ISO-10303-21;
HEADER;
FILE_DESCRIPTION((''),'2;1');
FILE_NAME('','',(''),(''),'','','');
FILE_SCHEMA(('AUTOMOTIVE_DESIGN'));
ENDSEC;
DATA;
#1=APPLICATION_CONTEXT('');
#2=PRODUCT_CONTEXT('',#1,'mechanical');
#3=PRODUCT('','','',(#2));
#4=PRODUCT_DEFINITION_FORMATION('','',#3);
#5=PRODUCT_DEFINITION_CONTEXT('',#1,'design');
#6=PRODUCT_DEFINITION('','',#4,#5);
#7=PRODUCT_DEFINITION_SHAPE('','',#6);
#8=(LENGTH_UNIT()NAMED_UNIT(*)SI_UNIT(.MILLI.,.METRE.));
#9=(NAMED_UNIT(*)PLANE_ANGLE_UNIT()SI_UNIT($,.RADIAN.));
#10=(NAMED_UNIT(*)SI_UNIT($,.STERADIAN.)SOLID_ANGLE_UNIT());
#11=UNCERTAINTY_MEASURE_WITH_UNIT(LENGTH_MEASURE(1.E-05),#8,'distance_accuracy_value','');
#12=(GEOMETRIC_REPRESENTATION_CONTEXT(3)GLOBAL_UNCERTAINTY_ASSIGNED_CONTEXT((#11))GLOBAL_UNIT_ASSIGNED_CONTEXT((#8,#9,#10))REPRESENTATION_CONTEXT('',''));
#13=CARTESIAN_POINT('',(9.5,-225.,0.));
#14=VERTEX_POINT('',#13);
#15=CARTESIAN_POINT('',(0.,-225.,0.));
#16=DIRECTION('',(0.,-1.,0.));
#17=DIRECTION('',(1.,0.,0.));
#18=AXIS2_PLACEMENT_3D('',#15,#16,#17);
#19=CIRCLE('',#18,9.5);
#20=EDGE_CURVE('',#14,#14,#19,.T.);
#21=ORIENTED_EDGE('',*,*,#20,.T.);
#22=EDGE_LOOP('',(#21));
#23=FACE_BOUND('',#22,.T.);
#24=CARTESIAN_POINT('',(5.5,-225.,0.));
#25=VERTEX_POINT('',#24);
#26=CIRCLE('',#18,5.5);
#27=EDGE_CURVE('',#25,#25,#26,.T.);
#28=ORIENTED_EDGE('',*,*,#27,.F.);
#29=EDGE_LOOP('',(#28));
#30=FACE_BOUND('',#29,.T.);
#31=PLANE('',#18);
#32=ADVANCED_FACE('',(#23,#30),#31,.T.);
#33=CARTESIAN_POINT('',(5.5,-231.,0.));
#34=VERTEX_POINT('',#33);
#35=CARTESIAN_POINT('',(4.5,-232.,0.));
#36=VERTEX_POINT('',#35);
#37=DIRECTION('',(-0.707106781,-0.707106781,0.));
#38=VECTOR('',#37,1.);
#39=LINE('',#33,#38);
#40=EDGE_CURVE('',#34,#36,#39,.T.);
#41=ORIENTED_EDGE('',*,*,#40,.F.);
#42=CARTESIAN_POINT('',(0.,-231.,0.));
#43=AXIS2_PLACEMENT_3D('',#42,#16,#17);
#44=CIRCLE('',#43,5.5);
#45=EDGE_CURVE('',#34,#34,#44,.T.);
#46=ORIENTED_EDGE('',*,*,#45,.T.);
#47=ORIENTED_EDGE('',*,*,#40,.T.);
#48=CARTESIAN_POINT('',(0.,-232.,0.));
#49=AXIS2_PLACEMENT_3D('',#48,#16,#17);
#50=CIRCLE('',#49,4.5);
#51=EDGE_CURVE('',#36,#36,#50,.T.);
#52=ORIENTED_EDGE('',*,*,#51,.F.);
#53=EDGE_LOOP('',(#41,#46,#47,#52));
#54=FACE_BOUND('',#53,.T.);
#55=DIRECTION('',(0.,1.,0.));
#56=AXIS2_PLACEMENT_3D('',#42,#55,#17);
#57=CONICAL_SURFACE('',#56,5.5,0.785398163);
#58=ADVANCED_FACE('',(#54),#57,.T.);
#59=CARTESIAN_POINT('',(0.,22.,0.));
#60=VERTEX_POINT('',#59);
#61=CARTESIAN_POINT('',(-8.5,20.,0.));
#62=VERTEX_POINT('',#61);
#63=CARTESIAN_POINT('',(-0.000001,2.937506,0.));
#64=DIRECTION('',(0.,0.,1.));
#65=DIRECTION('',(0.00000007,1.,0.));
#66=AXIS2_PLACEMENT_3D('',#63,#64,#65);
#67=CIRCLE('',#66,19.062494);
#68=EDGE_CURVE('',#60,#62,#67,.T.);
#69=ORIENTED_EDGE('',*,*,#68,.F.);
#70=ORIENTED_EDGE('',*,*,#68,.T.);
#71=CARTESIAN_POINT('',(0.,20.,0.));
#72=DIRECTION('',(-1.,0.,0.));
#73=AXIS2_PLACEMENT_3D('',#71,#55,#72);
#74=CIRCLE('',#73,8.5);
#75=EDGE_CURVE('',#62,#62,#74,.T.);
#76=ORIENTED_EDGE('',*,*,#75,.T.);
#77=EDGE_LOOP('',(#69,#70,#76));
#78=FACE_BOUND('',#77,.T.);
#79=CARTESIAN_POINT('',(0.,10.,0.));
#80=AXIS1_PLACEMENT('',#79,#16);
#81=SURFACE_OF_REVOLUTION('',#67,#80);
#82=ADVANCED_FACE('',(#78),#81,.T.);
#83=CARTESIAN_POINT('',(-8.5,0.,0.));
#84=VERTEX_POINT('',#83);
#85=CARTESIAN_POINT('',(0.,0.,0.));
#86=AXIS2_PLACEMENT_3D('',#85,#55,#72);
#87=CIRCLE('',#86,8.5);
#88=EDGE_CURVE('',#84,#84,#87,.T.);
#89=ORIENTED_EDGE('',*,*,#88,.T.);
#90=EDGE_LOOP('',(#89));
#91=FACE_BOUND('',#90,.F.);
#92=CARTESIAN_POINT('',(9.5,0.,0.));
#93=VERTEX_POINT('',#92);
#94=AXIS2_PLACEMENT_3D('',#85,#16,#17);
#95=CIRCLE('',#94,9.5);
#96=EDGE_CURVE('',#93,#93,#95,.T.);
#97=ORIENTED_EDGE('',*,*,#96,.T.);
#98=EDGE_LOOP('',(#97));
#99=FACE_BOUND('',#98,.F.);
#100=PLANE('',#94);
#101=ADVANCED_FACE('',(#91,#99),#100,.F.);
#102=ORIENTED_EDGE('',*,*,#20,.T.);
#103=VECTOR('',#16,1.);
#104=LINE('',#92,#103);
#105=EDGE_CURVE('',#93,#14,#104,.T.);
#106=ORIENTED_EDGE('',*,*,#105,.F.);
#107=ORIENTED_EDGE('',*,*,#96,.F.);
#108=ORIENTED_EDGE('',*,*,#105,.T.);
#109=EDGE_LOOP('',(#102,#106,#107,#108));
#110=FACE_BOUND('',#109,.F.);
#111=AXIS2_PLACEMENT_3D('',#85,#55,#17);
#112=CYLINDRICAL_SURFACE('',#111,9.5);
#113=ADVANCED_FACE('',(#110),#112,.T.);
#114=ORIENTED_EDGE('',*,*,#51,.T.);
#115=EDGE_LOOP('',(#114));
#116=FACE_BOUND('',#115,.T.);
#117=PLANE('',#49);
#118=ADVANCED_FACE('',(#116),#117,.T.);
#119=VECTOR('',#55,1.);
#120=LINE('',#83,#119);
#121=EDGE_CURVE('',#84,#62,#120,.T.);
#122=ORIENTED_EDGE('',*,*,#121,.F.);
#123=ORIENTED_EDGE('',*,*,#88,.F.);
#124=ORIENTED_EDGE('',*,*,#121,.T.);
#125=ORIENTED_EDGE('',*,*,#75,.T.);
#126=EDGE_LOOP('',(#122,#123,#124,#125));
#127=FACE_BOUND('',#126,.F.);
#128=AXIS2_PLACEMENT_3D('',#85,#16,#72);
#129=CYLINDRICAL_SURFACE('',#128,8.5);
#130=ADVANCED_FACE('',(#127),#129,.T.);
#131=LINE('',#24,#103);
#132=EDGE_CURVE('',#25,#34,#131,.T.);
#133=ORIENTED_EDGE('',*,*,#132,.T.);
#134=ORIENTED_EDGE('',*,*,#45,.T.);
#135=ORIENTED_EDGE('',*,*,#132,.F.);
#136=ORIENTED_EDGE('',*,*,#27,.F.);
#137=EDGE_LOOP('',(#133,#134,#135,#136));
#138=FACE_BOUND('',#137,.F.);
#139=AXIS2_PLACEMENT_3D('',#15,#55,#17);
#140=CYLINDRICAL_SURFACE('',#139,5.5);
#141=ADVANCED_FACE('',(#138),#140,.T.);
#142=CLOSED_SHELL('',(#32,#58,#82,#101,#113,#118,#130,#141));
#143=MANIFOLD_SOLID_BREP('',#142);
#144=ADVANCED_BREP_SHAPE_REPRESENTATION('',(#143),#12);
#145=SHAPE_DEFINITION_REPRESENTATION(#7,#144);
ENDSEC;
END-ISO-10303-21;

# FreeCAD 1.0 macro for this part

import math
import FreeCAD as App
import Part
import Sketcher
from FreeCAD import Vector
Q = App.Units.Quantity


def edges_at(feature, points):
    """Names of the edges that pass closest to the given points."""
    edges = feature.Shape.Edges
    near = lambda p: min(range(len(edges)), key=lambda i: edges[i].distToShape(Part.Vertex(*p))[0])
    return sorted({f"Edge{near(p) + 1}" for p in points})

doc = App.newDocument("Part")
body = doc.addObject("PartDesign::Body", "Body")

# Sketch on XZ plane
sketch1 = body.newObject("Sketcher::SketchObject", "Sketch")
sketch1.AttachmentSupport = (doc.getObject("XZ_Plane"), [""])
sketch1.MapMode = "FlatFace"
sketch1.addGeometry(Part.Circle(Vector(0, 0, 0), Vector(0, 0, 1), 10), False)
sketch1.addConstraint([
    Sketcher.Constraint("Coincident", 0, 3, -1, 1),
    Sketcher.Constraint("Diameter", 0, Q("19 mm")),
])
pad1 = body.newObject("PartDesign::Pad", "Pad")
pad1.Profile = sketch1
pad1.Length = 225

# Sketch on XZ plane
sketch2 = body.newObject("Sketcher::SketchObject", "Sketch001")
sketch2.AttachmentSupport = (doc.getObject("XZ_Plane"), [""])
sketch2.MapMode = "FlatFace"
sketch2.AttachmentOffset = App.Placement(Vector(0, 0, 225), App.Rotation())
sketch2.addGeometry(Part.Circle(Vector(0, 0, 0), Vector(0, 0, 1), 6), False)
sketch2.addConstraint([
    Sketcher.Constraint("Coincident", 0, 3, -1, 1),
    Sketcher.Constraint("Diameter", 0, Q("11 mm")),
])
pad2 = body.newObject("PartDesign::Pad", "Pad001")
pad2.Profile = sketch2
pad2.Length = 7
doc.recompute()

chamfer = body.newObject("PartDesign::Chamfer", "Chamfer")
chamfer.Base = (pad2, edges_at(pad2, [(-5.5, -232, 0)]))
chamfer.Size = 1

# Sketch on XZ plane
sketch3 = body.newObject("Sketcher::SketchObject", "Sketch002")
sketch3.AttachmentSupport = (doc.getObject("XZ_Plane"), [""])
sketch3.MapMode = "FlatFace"
sketch3.addGeometry(Part.Circle(Vector(0, 0, 0), Vector(0, 0, 1), 8), False)
sketch3.addConstraint([
    Sketcher.Constraint("Coincident", 0, 3, -1, 1),
    Sketcher.Constraint("Diameter", 0, Q("17 mm")),
])
pad3 = body.newObject("PartDesign::Pad", "Pad002")
pad3.Profile = sketch3
pad3.Length = 20
pad3.Reversed = True

# Sketch on XY plane
sketch4 = body.newObject("Sketcher::SketchObject", "Sketch003")
sketch4.AttachmentSupport = (doc.getObject("XY_Plane"), [""])
sketch4.MapMode = "FlatFace"
sketch4.addGeometry([
    Part.LineSegment(Vector(-8.5, 20, 0), Vector(0, 20, 0)),
    Part.LineSegment(Vector(0, 20, 0), Vector(0, 22, 0)),
    Part.ArcOfCircle(Part.Circle(Vector(0, 2.9, 0), Vector(0, 0, 1), 19.1), math.radians(90), math.radians(116)),
], False)
sketch4.addConstraint([
    Sketcher.Constraint("Coincident", 0, 2, 1, 1),
    Sketcher.Constraint("Coincident", 1, 2, 2, 1),
    Sketcher.Constraint("Coincident", 2, 2, 0, 1),
    Sketcher.Constraint("Horizontal", 0),
    Sketcher.Constraint("Vertical", 1),
    Sketcher.Constraint("PointOnObject", 2, 3, -2),
    Sketcher.Constraint("PointOnObject", 0, 2, -2),
    Sketcher.Constraint("DistanceY", 1, 1, 1, 2, Q("2 mm")),
    Sketcher.Constraint("DistanceX", 0, 1, 0, 2, Q("8.5 mm")),
    Sketcher.Constraint("DistanceY", -1, 1, 0, 2, Q("20 mm")),
])
revolution = body.newObject("PartDesign::Revolution", "Revolution")
revolution.Profile = sketch4
revolution.ReferenceAxis = (sketch4, ["V_Axis"])
revolution.Angle = 360

doc.recompute()
